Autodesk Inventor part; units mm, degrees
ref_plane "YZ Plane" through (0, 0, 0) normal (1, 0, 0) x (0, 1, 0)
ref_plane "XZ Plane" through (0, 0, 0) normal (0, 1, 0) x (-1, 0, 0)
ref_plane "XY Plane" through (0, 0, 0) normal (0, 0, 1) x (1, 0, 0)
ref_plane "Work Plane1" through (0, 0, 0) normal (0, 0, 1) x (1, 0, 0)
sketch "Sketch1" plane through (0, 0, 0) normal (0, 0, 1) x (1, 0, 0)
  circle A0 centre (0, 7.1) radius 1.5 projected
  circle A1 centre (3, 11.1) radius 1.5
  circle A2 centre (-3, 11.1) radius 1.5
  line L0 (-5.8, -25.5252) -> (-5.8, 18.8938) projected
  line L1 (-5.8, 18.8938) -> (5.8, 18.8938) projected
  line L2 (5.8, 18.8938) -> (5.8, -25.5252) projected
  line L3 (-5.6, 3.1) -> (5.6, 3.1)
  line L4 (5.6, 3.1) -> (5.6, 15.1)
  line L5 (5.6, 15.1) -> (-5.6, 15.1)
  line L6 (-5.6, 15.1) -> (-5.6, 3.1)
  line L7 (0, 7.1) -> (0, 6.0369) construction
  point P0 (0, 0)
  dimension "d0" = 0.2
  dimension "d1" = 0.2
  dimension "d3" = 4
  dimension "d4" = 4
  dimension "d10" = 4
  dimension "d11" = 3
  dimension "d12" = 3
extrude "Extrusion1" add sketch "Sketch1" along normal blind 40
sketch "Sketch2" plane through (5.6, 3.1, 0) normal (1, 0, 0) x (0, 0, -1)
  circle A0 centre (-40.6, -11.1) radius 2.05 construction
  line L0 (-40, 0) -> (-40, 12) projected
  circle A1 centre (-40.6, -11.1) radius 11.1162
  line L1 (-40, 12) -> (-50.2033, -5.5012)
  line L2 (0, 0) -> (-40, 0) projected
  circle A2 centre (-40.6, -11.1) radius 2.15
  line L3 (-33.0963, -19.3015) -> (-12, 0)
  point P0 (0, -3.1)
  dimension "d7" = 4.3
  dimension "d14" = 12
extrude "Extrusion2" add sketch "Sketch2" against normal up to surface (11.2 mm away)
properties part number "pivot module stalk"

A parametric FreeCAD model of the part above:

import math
import FreeCAD as App
import Part
import Sketcher

doc = App.newDocument("Part")
body = doc.addObject("PartDesign::Body", "Body")

# Sketch on XY plane
sketch1 = body.newObject("Sketcher::SketchObject", "Sketch")
sketch1.AttachmentSupport = (doc.getObject("XY_Plane"), [""])
sketch1.MapMode = "FlatFace"
sketch1.addGeometry(Part.LineSegment(App.Vector(-5.6, 15.1, 0), App.Vector(-5.6, 3.1, 0)), False)
sketch1.addGeometry(Part.LineSegment(App.Vector(-5.6, 3.1, 0), App.Vector(5.6, 3.1, 0)), False)
sketch1.addGeometry(Part.LineSegment(App.Vector(5.6, 3.1, 0), App.Vector(5.6, 15.1, 0)), False)
sketch1.addGeometry(Part.LineSegment(App.Vector(5.6, 15.1, 0), App.Vector(-5.6, 15.1, 0)), False)
sketch1.addGeometry(Part.Circle(App.Vector(0, 7.1, 0), App.Vector(0, 0, 1), 1.5), False)
sketch1.addGeometry(Part.Circle(App.Vector(-3, 11.1, 0), App.Vector(0, 0, 1), 1.5), False)
sketch1.addGeometry(Part.Circle(App.Vector(3, 11.1, 0), App.Vector(0, 0, 1), 1.5), False)
sketch1.addConstraint(Sketcher.Constraint("Coincident", 0, 2, 1, 1))
sketch1.addConstraint(Sketcher.Constraint("Coincident", 1, 2, 2, 1))
sketch1.addConstraint(Sketcher.Constraint("Coincident", 2, 2, 3, 1))
sketch1.addConstraint(Sketcher.Constraint("Coincident", 3, 2, 0, 1))
sketch1.addConstraint(Sketcher.Constraint("Vertical", 0))
sketch1.addConstraint(Sketcher.Constraint("Horizontal", 1))
sketch1.addConstraint(Sketcher.Constraint("Vertical", 2))
sketch1.addConstraint(Sketcher.Constraint("Horizontal", 3))
sketch1.addConstraint(Sketcher.Constraint("Equal", 4, 5))
sketch1.addConstraint(Sketcher.Constraint("Equal", 5, 6))
sketch1.addConstraint(Sketcher.Constraint("Symmetric", 5, 3, 6, 3, -2))
sketch1.addConstraint(Sketcher.Constraint("PointOnObject", 4, 3, -2))
sketch1.addConstraint(Sketcher.Constraint("Diameter", 4, 3.0))
sketch1.addConstraint(Sketcher.Constraint("DistanceX", 5, 3, -1, 1, 3.0))
sketch1.addConstraint(Sketcher.Constraint("DistanceY", 4, 3, 5, 3, 4.0))
sketch1.addConstraint(Sketcher.Constraint("DistanceY", 0, 2, 4, 3, 4.0))
sketch1.addConstraint(Sketcher.Constraint("DistanceY", 6, 3, 2, 2, 4.0))
sketch1.addConstraint(Sketcher.Constraint("DistanceX", 1, 1, 1, 2, 11.2))
sketch1.addConstraint(Sketcher.Constraint("DistanceY", -1, 1, 4, 3, 7.1))
sketch1.addConstraint(Sketcher.Constraint("DistanceX", 0, 2, -1, 1, 5.6))
pad1 = body.newObject("PartDesign::Pad", "Pad")
pad1.Profile = sketch1
pad1.Length = 40

# Sketch on YZ plane
sketch2 = body.newObject("Sketcher::SketchObject", "Sketch001")
sketch2.AttachmentSupport = (doc.getObject("YZ_Plane"), [""])
sketch2.MapMode = "FlatFace"
sketch2.AttachmentOffset = App.Placement(App.Vector(0, 0, 5.6), App.Rotation())
sketch2.addGeometry(Part.LineSegment(App.Vector(15.1, 40, 0), App.Vector(-2.4012, 50.2033, 0)), False)
sketch2.addGeometry(Part.ArcOfCircle(Part.Circle(App.Vector(-8, 40.6, 0), App.Vector(0, 0, 1), 11.1162), math.radians(59.757476), math.radians(222.455956)), False)
sketch2.addGeometry(Part.LineSegment(App.Vector(-16.2015, 33.0963, 0), App.Vector(3.1, 12, 0)), False)
sketch2.addGeometry(Part.LineSegment(App.Vector(3.1, 12, 0), App.Vector(3.1, 40, 0)), False)
sketch2.addGeometry(Part.LineSegment(App.Vector(3.1, 40, 0), App.Vector(15.1, 40, 0)), False)
sketch2.addGeometry(Part.Circle(App.Vector(-8, 40.6, 0), App.Vector(0, 0, 1), 2.15), False)
sketch2.addConstraint(Sketcher.Constraint("Tangent", 0, 2, 1, 1))
sketch2.addConstraint(Sketcher.Constraint("Tangent", 1, 2, 2, 1))
sketch2.addConstraint(Sketcher.Constraint("Coincident", 2, 2, 3, 1))
sketch2.addConstraint(Sketcher.Constraint("Coincident", 3, 2, 4, 1))
sketch2.addConstraint(Sketcher.Constraint("Coincident", 4, 2, 0, 1))
sketch2.addConstraint(Sketcher.Constraint("Vertical", 3))
sketch2.addConstraint(Sketcher.Constraint("Horizontal", 4))
sketch2.addConstraint(Sketcher.Constraint("Coincident", 5, 3, 1, 3))
sketch2.addConstraint(Sketcher.Constraint("Diameter", 5, 4.3))
sketch2.addConstraint(Sketcher.Constraint("DistanceX", 4, 1, 4, 2, 12.0))
sketch2.addConstraint(Sketcher.Constraint("DistanceY", -1, 1, 2, 2, 12.0))
sketch2.addConstraint(Sketcher.Constraint("DistanceY", 3, 1, 3, 2, 28.0))
sketch2.addConstraint(Sketcher.Constraint("DistanceX", 1, 3, -1, 1, 8.0))
sketch2.addConstraint(Sketcher.Constraint("DistanceY", -1, 1, 1, 3, 40.6))
sketch2.addConstraint(Sketcher.Constraint("DistanceX", -1, 1, 2, 2, 3.1))
sketch2.addConstraint(Sketcher.Constraint("Radius", 1, 11.1162))
pad2 = body.newObject("PartDesign::Pad", "Pad001")
pad2.Profile = sketch2
pad2.Length = 11.2
pad2.Reversed = True

doc.recompute()
